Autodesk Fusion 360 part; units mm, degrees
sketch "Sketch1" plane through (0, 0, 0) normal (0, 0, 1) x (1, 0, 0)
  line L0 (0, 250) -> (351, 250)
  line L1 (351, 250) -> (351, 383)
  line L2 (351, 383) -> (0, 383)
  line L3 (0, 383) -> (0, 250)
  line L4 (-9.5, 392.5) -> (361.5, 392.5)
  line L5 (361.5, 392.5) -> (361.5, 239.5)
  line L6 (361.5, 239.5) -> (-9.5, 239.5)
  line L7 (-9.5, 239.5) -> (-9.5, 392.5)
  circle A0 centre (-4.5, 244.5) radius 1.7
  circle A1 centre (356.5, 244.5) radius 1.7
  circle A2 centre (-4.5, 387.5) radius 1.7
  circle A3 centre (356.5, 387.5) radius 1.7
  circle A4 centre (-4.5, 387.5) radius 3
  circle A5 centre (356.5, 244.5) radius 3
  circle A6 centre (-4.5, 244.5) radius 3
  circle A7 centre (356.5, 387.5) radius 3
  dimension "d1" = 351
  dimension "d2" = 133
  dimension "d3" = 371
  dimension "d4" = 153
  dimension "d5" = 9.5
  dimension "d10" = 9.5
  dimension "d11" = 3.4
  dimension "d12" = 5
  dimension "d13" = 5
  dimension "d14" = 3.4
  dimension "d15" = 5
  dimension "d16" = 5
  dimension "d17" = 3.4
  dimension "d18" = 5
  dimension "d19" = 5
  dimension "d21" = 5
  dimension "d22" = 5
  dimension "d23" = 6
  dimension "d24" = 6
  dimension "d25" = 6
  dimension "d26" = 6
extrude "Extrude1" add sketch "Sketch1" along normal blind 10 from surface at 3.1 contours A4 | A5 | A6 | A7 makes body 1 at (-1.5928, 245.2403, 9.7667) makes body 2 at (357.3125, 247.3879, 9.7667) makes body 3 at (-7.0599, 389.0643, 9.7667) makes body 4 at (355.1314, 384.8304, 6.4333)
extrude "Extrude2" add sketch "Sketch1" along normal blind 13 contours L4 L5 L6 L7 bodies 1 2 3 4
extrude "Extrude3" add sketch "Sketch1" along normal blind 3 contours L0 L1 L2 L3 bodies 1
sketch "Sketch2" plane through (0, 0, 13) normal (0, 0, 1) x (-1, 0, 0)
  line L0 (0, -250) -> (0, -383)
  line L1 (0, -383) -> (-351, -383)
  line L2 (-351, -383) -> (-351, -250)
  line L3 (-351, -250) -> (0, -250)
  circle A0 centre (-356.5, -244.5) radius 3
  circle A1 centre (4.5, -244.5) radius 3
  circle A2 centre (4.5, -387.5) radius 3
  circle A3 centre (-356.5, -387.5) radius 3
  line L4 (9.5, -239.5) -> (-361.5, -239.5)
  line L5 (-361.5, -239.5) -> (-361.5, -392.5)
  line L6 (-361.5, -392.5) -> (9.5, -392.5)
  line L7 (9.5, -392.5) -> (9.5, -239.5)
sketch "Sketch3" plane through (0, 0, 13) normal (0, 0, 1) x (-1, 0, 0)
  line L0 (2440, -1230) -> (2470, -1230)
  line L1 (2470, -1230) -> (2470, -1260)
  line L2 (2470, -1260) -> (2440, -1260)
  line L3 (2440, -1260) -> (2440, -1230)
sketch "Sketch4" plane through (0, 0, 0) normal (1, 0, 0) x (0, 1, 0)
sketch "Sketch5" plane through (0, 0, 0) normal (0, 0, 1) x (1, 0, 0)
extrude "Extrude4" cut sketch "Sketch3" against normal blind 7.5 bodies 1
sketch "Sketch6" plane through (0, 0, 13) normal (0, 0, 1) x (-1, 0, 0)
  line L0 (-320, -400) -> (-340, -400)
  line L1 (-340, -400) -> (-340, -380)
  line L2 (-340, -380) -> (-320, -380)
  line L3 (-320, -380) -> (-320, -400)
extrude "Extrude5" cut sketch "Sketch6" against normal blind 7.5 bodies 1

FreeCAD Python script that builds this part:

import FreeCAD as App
import Part
import Sketcher
from FreeCAD import Vector

doc = App.newDocument("Part")
body = doc.addObject("PartDesign::Body", "Body")
body.AllowCompound = True

sketch1 = body.newObject("Sketcher::SketchObject", "Sketch")
sketch1.AttachmentSupport = (doc.getObject("XY_Plane"), [""])
sketch1.MapMode = "FlatFace"
sketch1.AttachmentOffset = App.Placement(Vector(0, 0, 3.1), App.Rotation())
sketch1.addGeometry([
    Part.Circle(Vector(-4.5, 387.5, 0), Vector(0, 0, 1), 3),
    Part.Circle(Vector(-4.5, 387.5, 0), Vector(0, 0, 1), 1.7),
    Part.Circle(Vector(356.5, 244.5, 0), Vector(0, 0, 1), 3),
    Part.Circle(Vector(356.5, 244.5, 0), Vector(0, 0, 1), 1.7),
    Part.Circle(Vector(-4.5, 244.5, 0), Vector(0, 0, 1), 3),
    Part.Circle(Vector(-4.5, 244.5, 0), Vector(0, 0, 1), 1.7),
    Part.Circle(Vector(356.5, 387.5, 0), Vector(0, 0, 1), 3),
    Part.Circle(Vector(356.5, 387.5, 0), Vector(0, 0, 1), 1.7),
], False)
sketch1.addConstraint([
    Sketcher.Constraint("Coincident", 1, 3, 0, 3),
    Sketcher.Constraint("Coincident", 3, 3, 2, 3),
    Sketcher.Constraint("Coincident", 5, 3, 4, 3),
    Sketcher.Constraint("Coincident", 7, 3, 6, 3),
    Sketcher.Constraint("Equal", 0, 2),
    Sketcher.Constraint("Equal", 1, 3),
    Sketcher.Constraint("Equal", 2, 4),
    Sketcher.Constraint("Equal", 3, 5),
    Sketcher.Constraint("Equal", 4, 6),
    Sketcher.Constraint("Equal", 5, 7),
    Sketcher.Constraint("Horizontal", 3, 3, 4, 3),
    Sketcher.Constraint("Horizontal", 1, 3, 6, 3),
    Sketcher.Constraint("Vertical", 1, 3, 4, 3),
    Sketcher.Constraint("Vertical", 3, 3, 6, 3),
    Sketcher.Constraint("Diameter", 0, 6.0),
    Sketcher.Constraint("Diameter", 1, 3.4),
    Sketcher.Constraint("DistanceX", 0, 3, 2, 3, 361.0),
    Sketcher.Constraint("DistanceY", 2, 3, 0, 3, 143.0),
    Sketcher.Constraint("DistanceX", 0, 3, -1, 1, 4.5),
    Sketcher.Constraint("DistanceY", -1, 1, 0, 3, 387.5),
])
pad1 = body.newObject("PartDesign::Pad", "Pad")
pad1.Profile = sketch1
pad1.Length = 10

sketch2 = body.newObject("Sketcher::SketchObject", "Sketch001")
sketch2.AttachmentSupport = (doc.getObject("XY_Plane"), [""])
sketch2.MapMode = "FlatFace"
sketch2.addGeometry([
    Part.LineSegment(Vector(361.5, 392.5, 0), Vector(-9.5, 392.5, 0)),
    Part.LineSegment(Vector(-9.5, 392.5, 0), Vector(-9.5, 239.5, 0)),
    Part.LineSegment(Vector(-9.5, 239.5, 0), Vector(361.5, 239.5, 0)),
    Part.LineSegment(Vector(361.5, 239.5, 0), Vector(361.5, 392.5, 0)),
    Part.Circle(Vector(-4.5, 244.5, 0), Vector(0, 0, 1), 3),
    Part.Circle(Vector(356.5, 244.5, 0), Vector(0, 0, 1), 3),
    Part.LineSegment(Vector(351, 250, 0), Vector(0, 250, 0)),
    Part.LineSegment(Vector(0, 250, 0), Vector(0, 383, 0)),
    Part.LineSegment(Vector(0, 383, 0), Vector(351, 383, 0)),
    Part.LineSegment(Vector(351, 383, 0), Vector(351, 250, 0)),
    Part.Circle(Vector(-4.5, 387.5, 0), Vector(0, 0, 1), 3),
    Part.Circle(Vector(356.5, 387.5, 0), Vector(0, 0, 1), 3),
], False)
sketch2.addConstraint([
    Sketcher.Constraint("Coincident", 0, 2, 1, 1),
    Sketcher.Constraint("Coincident", 1, 2, 2, 1),
    Sketcher.Constraint("Coincident", 2, 2, 3, 1),
    Sketcher.Constraint("Coincident", 3, 2, 0, 1),
    Sketcher.Constraint("Coincident", 6, 2, 7, 1),
    Sketcher.Constraint("Coincident", 7, 2, 8, 1),
    Sketcher.Constraint("Coincident", 8, 2, 9, 1),
    Sketcher.Constraint("Coincident", 9, 2, 6, 1),
    Sketcher.Constraint("Horizontal", 0),
    Sketcher.Constraint("Vertical", 1),
    Sketcher.Constraint("Horizontal", 2),
    Sketcher.Constraint("Vertical", 3),
    Sketcher.Constraint("Horizontal", 6),
    Sketcher.Constraint("Vertical", 7),
    Sketcher.Constraint("Horizontal", 8),
    Sketcher.Constraint("Vertical", 9),
    Sketcher.Constraint("Equal", 4, 5),
    Sketcher.Constraint("Equal", 5, 10),
    Sketcher.Constraint("Equal", 10, 11),
    Sketcher.Constraint("PointOnObject", 6, 2, -2),
    Sketcher.Constraint("Horizontal", 4, 3, 5, 3),
    Sketcher.Constraint("Horizontal", 10, 3, 11, 3),
    Sketcher.Constraint("Vertical", 4, 3, 10, 3),
    Sketcher.Constraint("Vertical", 5, 3, 11, 3),
    Sketcher.Constraint("Diameter", 4, 6.0),
    Sketcher.Constraint("DistanceX", 0, 2, 0, 1, 371.0),
    Sketcher.Constraint("DistanceX", 6, 2, 6, 1, 351.0),
    Sketcher.Constraint("DistanceY", 1, 2, 1, 1, 153.0),
    Sketcher.Constraint("DistanceY", 7, 1, 7, 2, 133.0),
    Sketcher.Constraint("DistanceX", 0, 2, 10, 3, 5.0),
    Sketcher.Constraint("DistanceY", 10, 3, 0, 2, 5.0),
    Sketcher.Constraint("DistanceY", 1, 2, 4, 3, 5.0),
    Sketcher.Constraint("DistanceX", 5, 3, 2, 2, 5.0),
    Sketcher.Constraint("DistanceX", 0, 2, -1, 1, 9.5),
    Sketcher.Constraint("DistanceY", 7, 2, 0, 2, 9.5),
    Sketcher.Constraint("DistanceY", -1, 1, 6, 2, 250.0),
])
pad2 = body.newObject("PartDesign::Pad", "Pad001")
pad2.Profile = sketch2
pad2.Length = 13

sketch3 = body.newObject("Sketcher::SketchObject", "Sketch002")
sketch3.AttachmentSupport = (doc.getObject("XY_Plane"), [""])
sketch3.MapMode = "FlatFace"
sketch3.addGeometry([
    Part.LineSegment(Vector(0, 383, 0), Vector(0, 250, 0)),
    Part.LineSegment(Vector(0, 250, 0), Vector(351, 250, 0)),
    Part.LineSegment(Vector(351, 250, 0), Vector(351, 383, 0)),
    Part.LineSegment(Vector(351, 383, 0), Vector(0, 383, 0)),
], False)
sketch3.addConstraint([
    Sketcher.Constraint("Coincident", 0, 2, 1, 1),
    Sketcher.Constraint("Coincident", 1, 2, 2, 1),
    Sketcher.Constraint("Coincident", 2, 2, 3, 1),
    Sketcher.Constraint("Coincident", 3, 2, 0, 1),
    Sketcher.Constraint("Vertical", 0),
    Sketcher.Constraint("Horizontal", 1),
    Sketcher.Constraint("Vertical", 2),
    Sketcher.Constraint("Horizontal", 3),
    Sketcher.Constraint("PointOnObject", 0, 2, -2),
    Sketcher.Constraint("DistanceX", 1, 1, 1, 2, 351.0),
    Sketcher.Constraint("DistanceY", 0, 2, 0, 1, 133.0),
    Sketcher.Constraint("DistanceY", -1, 1, 0, 2, 250.0),
])
pad3 = body.newObject("PartDesign::Pad", "Pad002")
pad3.Profile = sketch3
pad3.Length = 3

sketch4 = body.newObject("Sketcher::SketchObject", "Sketch003")
sketch4.AttachmentSupport = (doc.getObject("XY_Plane"), [""])
sketch4.MapMode = "FlatFace"
sketch4.AttachmentOffset = App.Placement(Vector(0, 0, 13), App.Rotation())
sketch4.addGeometry([
    Part.LineSegment(Vector(-2470, 1230, 0), Vector(-2440, 1230, 0)),
    Part.LineSegment(Vector(-2440, 1230, 0), Vector(-2440, 1260, 0)),
    Part.LineSegment(Vector(-2440, 1260, 0), Vector(-2470, 1260, 0)),
    Part.LineSegment(Vector(-2470, 1260, 0), Vector(-2470, 1230, 0)),
], False)
sketch4.addConstraint([
    Sketcher.Constraint("Coincident", 0, 2, 1, 1),
    Sketcher.Constraint("Coincident", 1, 2, 2, 1),
    Sketcher.Constraint("Coincident", 2, 2, 3, 1),
    Sketcher.Constraint("Coincident", 3, 2, 0, 1),
    Sketcher.Constraint("Horizontal", 0),
    Sketcher.Constraint("Vertical", 1),
    Sketcher.Constraint("Horizontal", 2),
    Sketcher.Constraint("Vertical", 3),
    Sketcher.Constraint("Equal", 2, 1),
    Sketcher.Constraint("DistanceX", 0, 1, 0, 2, 30.0),
    Sketcher.Constraint("DistanceX", 0, 2, -1, 1, 2440.0),
    Sketcher.Constraint("DistanceY", -1, 1, 0, 2, 1230.0),
])
pocket1 = body.newObject("PartDesign::Pocket", "Pocket")
pocket1.Profile = sketch4
pocket1.Length = 7.5

sketch5 = body.newObject("Sketcher::SketchObject", "Sketch004")
sketch5.AttachmentSupport = (doc.getObject("XY_Plane"), [""])
sketch5.MapMode = "FlatFace"
sketch5.AttachmentOffset = App.Placement(Vector(0, 0, 13), App.Rotation())
sketch5.addGeometry([
    Part.LineSegment(Vector(340, 400, 0), Vector(320, 400, 0)),
    Part.LineSegment(Vector(320, 400, 0), Vector(320, 380, 0)),
    Part.LineSegment(Vector(320, 380, 0), Vector(340, 380, 0)),
    Part.LineSegment(Vector(340, 380, 0), Vector(340, 400, 0)),
], False)
sketch5.addConstraint([
    Sketcher.Constraint("Coincident", 0, 2, 1, 1),
    Sketcher.Constraint("Coincident", 1, 2, 2, 1),
    Sketcher.Constraint("Coincident", 2, 2, 3, 1),
    Sketcher.Constraint("Coincident", 3, 2, 0, 1),
    Sketcher.Constraint("Horizontal", 0),
    Sketcher.Constraint("Vertical", 1),
    Sketcher.Constraint("Horizontal", 2),
    Sketcher.Constraint("Vertical", 3),
    Sketcher.Constraint("Equal", 2, 1),
    Sketcher.Constraint("DistanceX", 0, 2, 0, 1, 20.0),
    Sketcher.Constraint("DistanceX", -1, 1, 0, 2, 320.0),
    Sketcher.Constraint("DistanceY", -1, 1, 0, 2, 400.0),
])
pocket2 = body.newObject("PartDesign::Pocket", "Pocket001")
pocket2.Profile = sketch5
pocket2.Length = 7.5

doc.recompute()
